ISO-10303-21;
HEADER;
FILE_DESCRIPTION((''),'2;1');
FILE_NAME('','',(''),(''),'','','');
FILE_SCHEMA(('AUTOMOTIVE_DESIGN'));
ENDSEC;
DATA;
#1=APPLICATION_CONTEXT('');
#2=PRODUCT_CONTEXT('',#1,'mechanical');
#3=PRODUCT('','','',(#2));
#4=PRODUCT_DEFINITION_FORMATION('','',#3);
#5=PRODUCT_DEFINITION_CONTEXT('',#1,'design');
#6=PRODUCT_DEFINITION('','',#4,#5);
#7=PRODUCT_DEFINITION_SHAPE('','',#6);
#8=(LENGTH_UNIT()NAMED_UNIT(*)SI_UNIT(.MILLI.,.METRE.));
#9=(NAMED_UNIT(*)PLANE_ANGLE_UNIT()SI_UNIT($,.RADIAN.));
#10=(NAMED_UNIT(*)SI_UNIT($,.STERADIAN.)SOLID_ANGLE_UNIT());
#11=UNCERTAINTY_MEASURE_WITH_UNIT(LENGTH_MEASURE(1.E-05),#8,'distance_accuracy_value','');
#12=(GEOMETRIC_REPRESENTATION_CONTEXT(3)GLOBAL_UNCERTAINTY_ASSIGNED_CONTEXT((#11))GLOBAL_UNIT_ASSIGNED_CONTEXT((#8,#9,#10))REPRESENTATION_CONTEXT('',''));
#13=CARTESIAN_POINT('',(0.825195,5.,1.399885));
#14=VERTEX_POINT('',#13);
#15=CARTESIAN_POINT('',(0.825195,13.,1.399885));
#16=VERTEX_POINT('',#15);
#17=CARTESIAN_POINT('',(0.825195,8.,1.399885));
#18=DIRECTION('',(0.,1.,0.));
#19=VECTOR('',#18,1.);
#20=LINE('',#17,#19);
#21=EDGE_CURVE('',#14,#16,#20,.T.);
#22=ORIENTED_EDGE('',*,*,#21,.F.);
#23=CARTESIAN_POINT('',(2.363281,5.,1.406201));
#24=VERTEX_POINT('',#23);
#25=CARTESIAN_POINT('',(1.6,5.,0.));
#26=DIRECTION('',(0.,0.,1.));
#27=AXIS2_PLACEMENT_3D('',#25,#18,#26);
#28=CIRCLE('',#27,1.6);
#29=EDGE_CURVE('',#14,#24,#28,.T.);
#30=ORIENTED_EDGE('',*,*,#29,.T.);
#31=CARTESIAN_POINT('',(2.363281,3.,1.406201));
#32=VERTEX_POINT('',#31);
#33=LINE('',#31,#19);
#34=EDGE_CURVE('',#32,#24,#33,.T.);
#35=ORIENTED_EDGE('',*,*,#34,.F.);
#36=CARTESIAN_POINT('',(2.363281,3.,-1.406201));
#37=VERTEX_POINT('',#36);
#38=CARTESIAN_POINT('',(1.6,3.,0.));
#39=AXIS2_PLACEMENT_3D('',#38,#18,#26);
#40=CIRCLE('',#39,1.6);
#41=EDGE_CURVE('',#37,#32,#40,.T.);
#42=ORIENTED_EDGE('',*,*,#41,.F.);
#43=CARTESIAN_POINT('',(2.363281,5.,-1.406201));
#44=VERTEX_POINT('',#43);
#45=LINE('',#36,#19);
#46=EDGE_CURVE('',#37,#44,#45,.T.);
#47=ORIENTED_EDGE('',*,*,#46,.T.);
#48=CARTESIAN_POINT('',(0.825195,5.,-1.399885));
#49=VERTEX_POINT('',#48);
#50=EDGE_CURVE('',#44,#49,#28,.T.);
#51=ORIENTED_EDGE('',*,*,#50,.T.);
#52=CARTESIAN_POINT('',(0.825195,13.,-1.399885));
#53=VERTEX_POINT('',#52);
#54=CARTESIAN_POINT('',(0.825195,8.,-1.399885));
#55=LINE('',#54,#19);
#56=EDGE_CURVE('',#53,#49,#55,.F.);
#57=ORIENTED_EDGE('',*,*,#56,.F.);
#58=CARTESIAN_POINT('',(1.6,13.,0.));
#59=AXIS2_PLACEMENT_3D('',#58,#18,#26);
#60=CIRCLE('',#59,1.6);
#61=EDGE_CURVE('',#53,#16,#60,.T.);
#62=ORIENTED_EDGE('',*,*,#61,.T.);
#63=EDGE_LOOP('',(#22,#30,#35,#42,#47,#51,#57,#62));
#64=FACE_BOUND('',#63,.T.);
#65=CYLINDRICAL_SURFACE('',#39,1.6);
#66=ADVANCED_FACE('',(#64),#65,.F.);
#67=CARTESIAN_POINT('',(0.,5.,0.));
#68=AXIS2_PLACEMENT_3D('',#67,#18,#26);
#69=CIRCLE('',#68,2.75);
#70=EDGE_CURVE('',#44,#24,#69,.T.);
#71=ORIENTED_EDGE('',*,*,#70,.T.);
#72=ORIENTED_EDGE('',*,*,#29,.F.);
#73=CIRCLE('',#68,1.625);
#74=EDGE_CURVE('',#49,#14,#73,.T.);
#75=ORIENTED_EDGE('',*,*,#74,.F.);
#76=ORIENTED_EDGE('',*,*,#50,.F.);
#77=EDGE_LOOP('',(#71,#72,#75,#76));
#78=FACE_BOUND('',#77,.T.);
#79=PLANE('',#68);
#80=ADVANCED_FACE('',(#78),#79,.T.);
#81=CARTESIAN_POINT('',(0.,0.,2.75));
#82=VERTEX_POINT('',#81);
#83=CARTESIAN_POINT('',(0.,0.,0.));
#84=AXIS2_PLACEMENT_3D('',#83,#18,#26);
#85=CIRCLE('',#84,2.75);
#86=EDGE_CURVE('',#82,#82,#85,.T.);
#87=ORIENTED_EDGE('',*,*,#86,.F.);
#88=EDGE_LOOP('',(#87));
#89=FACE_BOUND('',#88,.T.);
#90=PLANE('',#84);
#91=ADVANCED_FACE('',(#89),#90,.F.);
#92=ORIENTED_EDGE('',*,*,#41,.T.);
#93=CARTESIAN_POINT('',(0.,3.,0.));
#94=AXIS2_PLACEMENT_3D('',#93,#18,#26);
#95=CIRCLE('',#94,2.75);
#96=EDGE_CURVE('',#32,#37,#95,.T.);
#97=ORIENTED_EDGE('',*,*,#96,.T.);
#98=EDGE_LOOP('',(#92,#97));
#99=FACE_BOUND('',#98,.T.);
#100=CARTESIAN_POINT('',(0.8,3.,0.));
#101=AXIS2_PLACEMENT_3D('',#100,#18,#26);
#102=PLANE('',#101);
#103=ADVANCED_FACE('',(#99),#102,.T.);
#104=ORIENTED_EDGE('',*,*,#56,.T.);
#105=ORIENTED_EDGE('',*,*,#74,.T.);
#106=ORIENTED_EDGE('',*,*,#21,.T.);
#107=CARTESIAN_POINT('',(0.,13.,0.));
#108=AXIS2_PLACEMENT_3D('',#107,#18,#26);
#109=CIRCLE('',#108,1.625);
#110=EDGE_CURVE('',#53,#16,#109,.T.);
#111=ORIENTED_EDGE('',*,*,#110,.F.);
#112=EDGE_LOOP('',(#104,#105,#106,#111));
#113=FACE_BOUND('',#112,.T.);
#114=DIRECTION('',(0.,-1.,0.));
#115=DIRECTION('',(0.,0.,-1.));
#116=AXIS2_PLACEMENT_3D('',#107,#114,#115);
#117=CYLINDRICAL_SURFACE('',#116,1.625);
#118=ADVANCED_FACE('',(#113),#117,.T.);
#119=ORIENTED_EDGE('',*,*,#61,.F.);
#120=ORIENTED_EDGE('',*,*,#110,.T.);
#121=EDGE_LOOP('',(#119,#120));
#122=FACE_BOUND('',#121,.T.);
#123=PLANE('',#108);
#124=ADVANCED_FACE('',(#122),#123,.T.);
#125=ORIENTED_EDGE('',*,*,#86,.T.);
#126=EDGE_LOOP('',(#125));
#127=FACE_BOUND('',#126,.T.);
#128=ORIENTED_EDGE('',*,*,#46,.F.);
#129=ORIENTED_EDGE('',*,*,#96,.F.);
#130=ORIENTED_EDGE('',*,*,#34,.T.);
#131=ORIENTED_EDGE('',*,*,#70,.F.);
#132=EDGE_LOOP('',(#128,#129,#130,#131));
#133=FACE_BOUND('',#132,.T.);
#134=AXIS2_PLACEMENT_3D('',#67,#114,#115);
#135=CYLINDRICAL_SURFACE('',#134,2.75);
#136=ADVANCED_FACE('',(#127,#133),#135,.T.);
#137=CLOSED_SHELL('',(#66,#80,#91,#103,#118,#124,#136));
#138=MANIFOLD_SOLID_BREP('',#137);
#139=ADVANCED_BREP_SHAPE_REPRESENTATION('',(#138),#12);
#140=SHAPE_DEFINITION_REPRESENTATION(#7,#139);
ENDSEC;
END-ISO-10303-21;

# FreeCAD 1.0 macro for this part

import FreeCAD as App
import Part
import Sketcher

V = App.Vector
Q = App.Units.Quantity

doc = App.newDocument("Part")
body = doc.addObject("PartDesign::Body", "Body")

sketch1 = body.newObject("Sketcher::SketchObject", "Sketch")
sketch1.AttachmentSupport = (doc.getObject("XZ_Plane"), [""])
sketch1.MapMode = "FlatFace"
sketch1.addGeometry([
    Part.Circle(V(0, 0, 0), V(0, 0, 1), 2.75),
    Part.Circle(V(0, 0, 0), V(0, 0, 1), 1.625),
], False)
sketch1.addConstraint([
    Sketcher.Constraint("Coincident", 0, 3, -1, 1),
    Sketcher.Constraint("Coincident", 1, 3, -1, 1),
    Sketcher.Constraint("Diameter", 0, Q("5.5 mm")),
    Sketcher.Constraint("Diameter", 1, Q("3.25 mm")),
])
pad1 = body.newObject("PartDesign::Pad", "Pad")
pad1.Profile = sketch1
pad1.Length = 5
pad1.Reversed = True

sketch2 = body.newObject("Sketcher::SketchObject", "Sketch001")
sketch2.AttachmentSupport = (doc.getObject("XZ_Plane"), [""])
sketch2.MapMode = "FlatFace"
sketch2.addGeometry(Part.Circle(V(0, 0, 0), V(0, 0, 1), 1.625), False)
sketch2.addConstraint([
    Sketcher.Constraint("Coincident", 0, 3, -1, 1),
    Sketcher.Constraint("Diameter", 0, Q("3.25 mm")),
])
pad2 = body.newObject("PartDesign::Pad", "Pad001")
pad2.Profile = sketch2
pad2.Length = 13
pad2.Reversed = True

sketch3 = body.newObject("Sketcher::SketchObject", "Sketch002")
sketch3.AttachmentSupport = (doc.getObject("XZ_Plane"), [""])
sketch3.MapMode = "FlatFace"
sketch3.AttachmentOffset = App.Placement(V(0, 0, -13), App.Rotation())
sketch3.addGeometry(Part.Circle(V(1.6, 0, 0), V(0, 0, 1), 1.6), False)
sketch3.addConstraint([
    Sketcher.Constraint("PointOnObject", 0, 3, -1),
    Sketcher.Constraint("Diameter", 0, Q("3.2 mm")),
    Sketcher.Constraint("DistanceX", -1, 1, 0, 3, Q("1.6 mm")),
])
pocket1 = body.newObject("PartDesign::Pocket", "Pocket")
pocket1.Profile = sketch3
pocket1.Length = 10
pocket1.Reversed = True

doc.recompute()
